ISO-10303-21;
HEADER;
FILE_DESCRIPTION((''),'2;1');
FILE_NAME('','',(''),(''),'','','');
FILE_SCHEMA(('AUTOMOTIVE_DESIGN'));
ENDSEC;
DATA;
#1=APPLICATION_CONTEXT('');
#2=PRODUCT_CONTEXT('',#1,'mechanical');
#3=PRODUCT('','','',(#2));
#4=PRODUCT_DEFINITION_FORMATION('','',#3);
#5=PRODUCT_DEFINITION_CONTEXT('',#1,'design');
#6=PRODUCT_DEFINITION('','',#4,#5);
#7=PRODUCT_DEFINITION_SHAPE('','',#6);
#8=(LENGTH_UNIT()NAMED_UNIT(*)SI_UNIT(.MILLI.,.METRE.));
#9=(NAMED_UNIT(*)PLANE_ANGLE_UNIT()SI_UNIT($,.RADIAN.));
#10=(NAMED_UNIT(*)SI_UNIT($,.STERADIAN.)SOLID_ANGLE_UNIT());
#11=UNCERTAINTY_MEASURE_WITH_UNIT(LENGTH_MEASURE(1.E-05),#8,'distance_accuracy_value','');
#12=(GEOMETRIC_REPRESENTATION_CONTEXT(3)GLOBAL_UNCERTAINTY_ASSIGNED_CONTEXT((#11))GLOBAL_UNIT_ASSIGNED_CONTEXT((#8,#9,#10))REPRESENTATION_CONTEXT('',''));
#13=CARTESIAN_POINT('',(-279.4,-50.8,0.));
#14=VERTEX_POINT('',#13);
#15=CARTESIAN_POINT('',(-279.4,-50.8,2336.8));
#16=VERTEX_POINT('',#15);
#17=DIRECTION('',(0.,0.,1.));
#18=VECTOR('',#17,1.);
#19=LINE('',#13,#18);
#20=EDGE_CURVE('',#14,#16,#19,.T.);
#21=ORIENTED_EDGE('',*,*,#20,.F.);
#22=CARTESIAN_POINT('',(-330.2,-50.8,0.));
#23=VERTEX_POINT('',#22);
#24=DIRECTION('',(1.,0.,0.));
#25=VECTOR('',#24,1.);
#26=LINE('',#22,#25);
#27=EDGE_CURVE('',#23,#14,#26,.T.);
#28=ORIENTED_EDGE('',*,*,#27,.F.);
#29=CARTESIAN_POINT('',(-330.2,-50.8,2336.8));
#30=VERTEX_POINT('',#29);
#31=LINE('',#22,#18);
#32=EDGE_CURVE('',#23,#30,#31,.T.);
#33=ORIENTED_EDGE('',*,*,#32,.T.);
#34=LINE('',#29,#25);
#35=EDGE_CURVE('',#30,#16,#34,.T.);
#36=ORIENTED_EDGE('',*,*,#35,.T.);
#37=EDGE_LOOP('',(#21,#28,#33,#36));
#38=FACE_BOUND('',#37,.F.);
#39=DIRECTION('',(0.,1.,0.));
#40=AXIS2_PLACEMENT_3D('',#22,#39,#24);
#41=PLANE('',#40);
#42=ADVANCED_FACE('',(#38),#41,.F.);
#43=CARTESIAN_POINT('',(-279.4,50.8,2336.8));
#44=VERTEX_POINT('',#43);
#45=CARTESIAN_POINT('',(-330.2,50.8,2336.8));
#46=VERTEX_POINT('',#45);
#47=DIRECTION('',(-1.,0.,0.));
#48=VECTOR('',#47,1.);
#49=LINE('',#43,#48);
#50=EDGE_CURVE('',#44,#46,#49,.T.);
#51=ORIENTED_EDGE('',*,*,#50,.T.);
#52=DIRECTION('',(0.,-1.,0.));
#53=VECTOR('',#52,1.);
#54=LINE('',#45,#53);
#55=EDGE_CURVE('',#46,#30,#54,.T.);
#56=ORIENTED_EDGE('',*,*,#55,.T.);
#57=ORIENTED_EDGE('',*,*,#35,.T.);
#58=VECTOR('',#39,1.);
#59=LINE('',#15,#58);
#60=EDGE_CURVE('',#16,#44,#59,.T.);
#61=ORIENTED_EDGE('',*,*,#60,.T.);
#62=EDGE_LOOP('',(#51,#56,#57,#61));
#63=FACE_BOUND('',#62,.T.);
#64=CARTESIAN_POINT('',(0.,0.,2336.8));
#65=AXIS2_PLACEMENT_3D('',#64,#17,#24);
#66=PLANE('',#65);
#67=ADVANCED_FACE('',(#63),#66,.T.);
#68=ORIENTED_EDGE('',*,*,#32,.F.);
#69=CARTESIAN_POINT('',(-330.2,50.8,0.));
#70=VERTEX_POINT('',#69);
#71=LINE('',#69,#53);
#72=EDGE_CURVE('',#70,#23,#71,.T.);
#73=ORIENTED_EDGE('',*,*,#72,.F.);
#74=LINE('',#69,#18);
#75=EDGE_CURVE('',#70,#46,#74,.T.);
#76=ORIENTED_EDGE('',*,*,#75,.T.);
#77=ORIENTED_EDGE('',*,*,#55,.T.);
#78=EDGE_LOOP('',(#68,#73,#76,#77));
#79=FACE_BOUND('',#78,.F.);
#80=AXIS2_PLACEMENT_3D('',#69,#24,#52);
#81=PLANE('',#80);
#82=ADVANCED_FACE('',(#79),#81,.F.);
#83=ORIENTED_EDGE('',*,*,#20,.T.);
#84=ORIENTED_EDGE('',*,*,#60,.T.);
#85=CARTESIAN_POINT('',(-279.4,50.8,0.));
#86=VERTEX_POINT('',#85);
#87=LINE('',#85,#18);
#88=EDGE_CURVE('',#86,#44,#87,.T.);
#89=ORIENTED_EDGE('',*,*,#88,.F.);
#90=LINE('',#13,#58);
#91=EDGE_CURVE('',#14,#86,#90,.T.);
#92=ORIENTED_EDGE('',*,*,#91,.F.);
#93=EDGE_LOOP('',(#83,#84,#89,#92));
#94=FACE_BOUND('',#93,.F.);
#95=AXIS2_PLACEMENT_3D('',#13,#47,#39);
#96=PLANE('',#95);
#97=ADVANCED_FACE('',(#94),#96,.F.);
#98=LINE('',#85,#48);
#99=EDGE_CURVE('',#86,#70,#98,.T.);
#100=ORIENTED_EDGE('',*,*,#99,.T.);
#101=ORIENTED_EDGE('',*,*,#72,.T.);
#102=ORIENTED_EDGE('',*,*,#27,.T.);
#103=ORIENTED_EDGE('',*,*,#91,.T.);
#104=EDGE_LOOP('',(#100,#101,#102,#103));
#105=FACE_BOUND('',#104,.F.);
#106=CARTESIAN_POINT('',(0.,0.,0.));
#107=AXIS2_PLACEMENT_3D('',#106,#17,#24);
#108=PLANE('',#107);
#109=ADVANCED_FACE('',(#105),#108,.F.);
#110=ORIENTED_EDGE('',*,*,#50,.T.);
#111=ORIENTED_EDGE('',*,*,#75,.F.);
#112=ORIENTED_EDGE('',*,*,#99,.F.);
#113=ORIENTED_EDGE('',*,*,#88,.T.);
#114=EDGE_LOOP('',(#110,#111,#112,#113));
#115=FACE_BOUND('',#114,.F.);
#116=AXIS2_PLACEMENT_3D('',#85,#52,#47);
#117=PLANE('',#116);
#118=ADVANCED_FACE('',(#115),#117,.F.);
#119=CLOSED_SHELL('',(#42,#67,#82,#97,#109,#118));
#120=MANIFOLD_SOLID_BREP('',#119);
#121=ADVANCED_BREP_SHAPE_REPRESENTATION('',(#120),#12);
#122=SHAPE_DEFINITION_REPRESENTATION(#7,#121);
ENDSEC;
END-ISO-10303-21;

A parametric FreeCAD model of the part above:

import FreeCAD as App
import Part
import Sketcher

V = App.Vector
Q = App.Units.Quantity


def add_polygon(sketch, points):
    """Adds a closed chain of lines whose ends are joined by coincident constraints."""
    first, n = sketch.GeometryCount, len(points)
    for a, b in zip(points, points[1:] + points[:1]):
        sketch.addGeometry(Part.LineSegment(App.Vector(*a, 0), App.Vector(*b, 0)), False)
    for i in range(n):
        sketch.addConstraint(Sketcher.Constraint("Coincident", first + i, 2, first + (i + 1) % n, 1))

doc = App.newDocument("Part")
body = doc.addObject("PartDesign::Body", "Body")

sketch1 = doc.addObject("Sketcher::SketchObject", "Sketch")
body.addObject(sketch1)
sketch1.AttachmentSupport = (doc.XY_Plane, [""])
sketch1.MapMode = "FlatFace"
add_polygon(sketch1, [(-330, 51), (-330, -51), (-279, -51), (-279, 51)])
sketch1.addConstraint(Sketcher.Constraint("Vertical", 0))
sketch1.addConstraint(Sketcher.Constraint("Horizontal", 1))
sketch1.addConstraint(Sketcher.Constraint("Vertical", 2))
sketch1.addConstraint(Sketcher.Constraint("Horizontal", 3))
sketch1.addConstraint(Sketcher.Constraint("DistanceX", 1, 1, 1, 2, Q("2 in")))
sketch1.addConstraint(Sketcher.Constraint("DistanceY", 0, 2, 0, 1, Q("4 in")))
sketch1.addConstraint(Sketcher.Constraint("DistanceY", 0, 2, -1, 1, Q("2 in")))
sketch1.addConstraint(Sketcher.Constraint("DistanceX", 0, 2, -1, 1, Q("13 in")))
pad1 = doc.addObject("PartDesign::Pad", "Pad")
body.addObject(pad1)
pad1.Profile = sketch1
pad1.Length = Q("92 in")

doc.recompute()
